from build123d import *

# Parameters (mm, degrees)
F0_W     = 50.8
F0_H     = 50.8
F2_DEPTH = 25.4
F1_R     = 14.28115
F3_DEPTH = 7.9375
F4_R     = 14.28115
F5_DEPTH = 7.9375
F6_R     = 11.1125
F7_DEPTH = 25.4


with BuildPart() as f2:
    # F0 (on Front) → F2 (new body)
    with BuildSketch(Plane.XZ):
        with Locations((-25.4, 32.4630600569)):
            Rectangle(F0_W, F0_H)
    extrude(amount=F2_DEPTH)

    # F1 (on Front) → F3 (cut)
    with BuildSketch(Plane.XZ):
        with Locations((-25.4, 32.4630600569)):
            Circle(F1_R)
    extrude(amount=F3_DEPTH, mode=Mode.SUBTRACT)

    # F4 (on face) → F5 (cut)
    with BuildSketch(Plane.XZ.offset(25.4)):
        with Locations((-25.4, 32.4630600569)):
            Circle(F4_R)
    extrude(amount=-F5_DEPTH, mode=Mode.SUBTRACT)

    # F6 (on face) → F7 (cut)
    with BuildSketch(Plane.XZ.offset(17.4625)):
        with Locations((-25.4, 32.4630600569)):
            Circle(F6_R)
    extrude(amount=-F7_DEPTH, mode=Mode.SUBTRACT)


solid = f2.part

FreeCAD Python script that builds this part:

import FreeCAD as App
import Part
import Sketcher
from FreeCAD import Vector
Q = App.Units.Quantity

doc = App.newDocument("Part")
body = doc.addObject("PartDesign::Body", "Body")

# Sketch on XZ plane
sketch1 = body.newObject("Sketcher::SketchObject", "Sketch")
sketch1.AttachmentSupport = (doc.getObject("XZ_Plane"), [""])
sketch1.MapMode = "FlatFace"
sketch1.addGeometry(Part.LineSegment(Vector(-51, 58, 0), Vector(-51, 7, 0)), False)
sketch1.addGeometry(Part.LineSegment(Vector(-51, 7, 0), Vector(0, 7, 0)), False)
sketch1.addGeometry(Part.LineSegment(Vector(0, 7, 0), Vector(0, 58, 0)), False)
sketch1.addGeometry(Part.LineSegment(Vector(0, 58, 0), Vector(-51, 58, 0)), False)
sketch1.addConstraint(Sketcher.Constraint("Coincident", 0, 2, 1, 1))
sketch1.addConstraint(Sketcher.Constraint("Coincident", 1, 2, 2, 1))
sketch1.addConstraint(Sketcher.Constraint("Coincident", 2, 2, 3, 1))
sketch1.addConstraint(Sketcher.Constraint("Coincident", 3, 2, 0, 1))
sketch1.addConstraint(Sketcher.Constraint("Vertical", 0))
sketch1.addConstraint(Sketcher.Constraint("Horizontal", 1))
sketch1.addConstraint(Sketcher.Constraint("Vertical", 2))
sketch1.addConstraint(Sketcher.Constraint("Horizontal", 3))
sketch1.addConstraint(Sketcher.Constraint("PointOnObject", 1, 2, -2))
sketch1.addConstraint(Sketcher.Constraint("Equal", 3, 0))
sketch1.addConstraint(Sketcher.Constraint("DistanceX", 1, 1, 1, 2, Q("2 in")))
sketch1.addConstraint(Sketcher.Constraint("DistanceY", -1, 1, 0, 2, Q("7.06306 mm")))
pad1 = body.newObject("PartDesign::Pad", "Pad")
pad1.Profile = sketch1
pad1.Length = Q("1 in")

# Sketch on XZ plane
sketch2 = body.newObject("Sketcher::SketchObject", "Sketch001")
sketch2.AttachmentSupport = (doc.getObject("XZ_Plane"), [""])
sketch2.MapMode = "FlatFace"
sketch2.addGeometry(Part.Circle(Vector(-25, 32, 0), Vector(0, 0, 1), 14), False)
sketch2.addConstraint(Sketcher.Constraint("DistanceX", 0, 3, -1, 1, Q("1 in")))
sketch2.addConstraint(Sketcher.Constraint("Diameter", 0, Q("1.1245 in")))
sketch2.addConstraint(Sketcher.Constraint("DistanceY", -1, 1, 0, 3, Q("32.46306 mm")))
pocket1 = body.newObject("PartDesign::Pocket", "Pocket")
pocket1.Profile = sketch2
pocket1.Length = Q("0.3125 in")
pocket1.Reversed = True

# Sketch on XZ plane
sketch3 = body.newObject("Sketcher::SketchObject", "Sketch002")
sketch3.AttachmentSupport = (doc.getObject("XZ_Plane"), [""])
sketch3.MapMode = "FlatFace"
sketch3.AttachmentOffset = App.Placement(Vector(0, 0, 1 * 25.4), App.Rotation())
sketch3.addGeometry(Part.Circle(Vector(-25, 32, 0), Vector(0, 0, 1), 14), False)
sketch3.addConstraint(Sketcher.Constraint("DistanceX", 0, 3, -1, 1, Q("1 in")))
sketch3.addConstraint(Sketcher.Constraint("Diameter", 0, Q("1.1245 in")))
sketch3.addConstraint(Sketcher.Constraint("DistanceY", -1, 1, 0, 3, Q("32.46306 mm")))
pocket2 = body.newObject("PartDesign::Pocket", "Pocket001")
pocket2.Profile = sketch3
pocket2.Length = Q("0.3125 in")

# Sketch on XZ plane
sketch4 = body.newObject("Sketcher::SketchObject", "Sketch003")
sketch4.AttachmentSupport = (doc.getObject("XZ_Plane"), [""])
sketch4.MapMode = "FlatFace"
sketch4.AttachmentOffset = App.Placement(Vector(0, 0, 0.6875 * 25.4), App.Rotation())
sketch4.addGeometry(Part.Circle(Vector(-25, 32, 0), Vector(0, 0, 1), 11), False)
sketch4.addConstraint(Sketcher.Constraint("Diameter", 0, Q("0.875 in")))
sketch4.addConstraint(Sketcher.Constraint("DistanceX", 0, 3, -1, 1, Q("1 in")))
sketch4.addConstraint(Sketcher.Constraint("DistanceY", -1, 1, 0, 3, Q("32.46306 mm")))
pocket3 = body.newObject("PartDesign::Pocket", "Pocket002")
pocket3.Profile = sketch4
pocket3.Length = Q("1 in")

doc.recompute()
